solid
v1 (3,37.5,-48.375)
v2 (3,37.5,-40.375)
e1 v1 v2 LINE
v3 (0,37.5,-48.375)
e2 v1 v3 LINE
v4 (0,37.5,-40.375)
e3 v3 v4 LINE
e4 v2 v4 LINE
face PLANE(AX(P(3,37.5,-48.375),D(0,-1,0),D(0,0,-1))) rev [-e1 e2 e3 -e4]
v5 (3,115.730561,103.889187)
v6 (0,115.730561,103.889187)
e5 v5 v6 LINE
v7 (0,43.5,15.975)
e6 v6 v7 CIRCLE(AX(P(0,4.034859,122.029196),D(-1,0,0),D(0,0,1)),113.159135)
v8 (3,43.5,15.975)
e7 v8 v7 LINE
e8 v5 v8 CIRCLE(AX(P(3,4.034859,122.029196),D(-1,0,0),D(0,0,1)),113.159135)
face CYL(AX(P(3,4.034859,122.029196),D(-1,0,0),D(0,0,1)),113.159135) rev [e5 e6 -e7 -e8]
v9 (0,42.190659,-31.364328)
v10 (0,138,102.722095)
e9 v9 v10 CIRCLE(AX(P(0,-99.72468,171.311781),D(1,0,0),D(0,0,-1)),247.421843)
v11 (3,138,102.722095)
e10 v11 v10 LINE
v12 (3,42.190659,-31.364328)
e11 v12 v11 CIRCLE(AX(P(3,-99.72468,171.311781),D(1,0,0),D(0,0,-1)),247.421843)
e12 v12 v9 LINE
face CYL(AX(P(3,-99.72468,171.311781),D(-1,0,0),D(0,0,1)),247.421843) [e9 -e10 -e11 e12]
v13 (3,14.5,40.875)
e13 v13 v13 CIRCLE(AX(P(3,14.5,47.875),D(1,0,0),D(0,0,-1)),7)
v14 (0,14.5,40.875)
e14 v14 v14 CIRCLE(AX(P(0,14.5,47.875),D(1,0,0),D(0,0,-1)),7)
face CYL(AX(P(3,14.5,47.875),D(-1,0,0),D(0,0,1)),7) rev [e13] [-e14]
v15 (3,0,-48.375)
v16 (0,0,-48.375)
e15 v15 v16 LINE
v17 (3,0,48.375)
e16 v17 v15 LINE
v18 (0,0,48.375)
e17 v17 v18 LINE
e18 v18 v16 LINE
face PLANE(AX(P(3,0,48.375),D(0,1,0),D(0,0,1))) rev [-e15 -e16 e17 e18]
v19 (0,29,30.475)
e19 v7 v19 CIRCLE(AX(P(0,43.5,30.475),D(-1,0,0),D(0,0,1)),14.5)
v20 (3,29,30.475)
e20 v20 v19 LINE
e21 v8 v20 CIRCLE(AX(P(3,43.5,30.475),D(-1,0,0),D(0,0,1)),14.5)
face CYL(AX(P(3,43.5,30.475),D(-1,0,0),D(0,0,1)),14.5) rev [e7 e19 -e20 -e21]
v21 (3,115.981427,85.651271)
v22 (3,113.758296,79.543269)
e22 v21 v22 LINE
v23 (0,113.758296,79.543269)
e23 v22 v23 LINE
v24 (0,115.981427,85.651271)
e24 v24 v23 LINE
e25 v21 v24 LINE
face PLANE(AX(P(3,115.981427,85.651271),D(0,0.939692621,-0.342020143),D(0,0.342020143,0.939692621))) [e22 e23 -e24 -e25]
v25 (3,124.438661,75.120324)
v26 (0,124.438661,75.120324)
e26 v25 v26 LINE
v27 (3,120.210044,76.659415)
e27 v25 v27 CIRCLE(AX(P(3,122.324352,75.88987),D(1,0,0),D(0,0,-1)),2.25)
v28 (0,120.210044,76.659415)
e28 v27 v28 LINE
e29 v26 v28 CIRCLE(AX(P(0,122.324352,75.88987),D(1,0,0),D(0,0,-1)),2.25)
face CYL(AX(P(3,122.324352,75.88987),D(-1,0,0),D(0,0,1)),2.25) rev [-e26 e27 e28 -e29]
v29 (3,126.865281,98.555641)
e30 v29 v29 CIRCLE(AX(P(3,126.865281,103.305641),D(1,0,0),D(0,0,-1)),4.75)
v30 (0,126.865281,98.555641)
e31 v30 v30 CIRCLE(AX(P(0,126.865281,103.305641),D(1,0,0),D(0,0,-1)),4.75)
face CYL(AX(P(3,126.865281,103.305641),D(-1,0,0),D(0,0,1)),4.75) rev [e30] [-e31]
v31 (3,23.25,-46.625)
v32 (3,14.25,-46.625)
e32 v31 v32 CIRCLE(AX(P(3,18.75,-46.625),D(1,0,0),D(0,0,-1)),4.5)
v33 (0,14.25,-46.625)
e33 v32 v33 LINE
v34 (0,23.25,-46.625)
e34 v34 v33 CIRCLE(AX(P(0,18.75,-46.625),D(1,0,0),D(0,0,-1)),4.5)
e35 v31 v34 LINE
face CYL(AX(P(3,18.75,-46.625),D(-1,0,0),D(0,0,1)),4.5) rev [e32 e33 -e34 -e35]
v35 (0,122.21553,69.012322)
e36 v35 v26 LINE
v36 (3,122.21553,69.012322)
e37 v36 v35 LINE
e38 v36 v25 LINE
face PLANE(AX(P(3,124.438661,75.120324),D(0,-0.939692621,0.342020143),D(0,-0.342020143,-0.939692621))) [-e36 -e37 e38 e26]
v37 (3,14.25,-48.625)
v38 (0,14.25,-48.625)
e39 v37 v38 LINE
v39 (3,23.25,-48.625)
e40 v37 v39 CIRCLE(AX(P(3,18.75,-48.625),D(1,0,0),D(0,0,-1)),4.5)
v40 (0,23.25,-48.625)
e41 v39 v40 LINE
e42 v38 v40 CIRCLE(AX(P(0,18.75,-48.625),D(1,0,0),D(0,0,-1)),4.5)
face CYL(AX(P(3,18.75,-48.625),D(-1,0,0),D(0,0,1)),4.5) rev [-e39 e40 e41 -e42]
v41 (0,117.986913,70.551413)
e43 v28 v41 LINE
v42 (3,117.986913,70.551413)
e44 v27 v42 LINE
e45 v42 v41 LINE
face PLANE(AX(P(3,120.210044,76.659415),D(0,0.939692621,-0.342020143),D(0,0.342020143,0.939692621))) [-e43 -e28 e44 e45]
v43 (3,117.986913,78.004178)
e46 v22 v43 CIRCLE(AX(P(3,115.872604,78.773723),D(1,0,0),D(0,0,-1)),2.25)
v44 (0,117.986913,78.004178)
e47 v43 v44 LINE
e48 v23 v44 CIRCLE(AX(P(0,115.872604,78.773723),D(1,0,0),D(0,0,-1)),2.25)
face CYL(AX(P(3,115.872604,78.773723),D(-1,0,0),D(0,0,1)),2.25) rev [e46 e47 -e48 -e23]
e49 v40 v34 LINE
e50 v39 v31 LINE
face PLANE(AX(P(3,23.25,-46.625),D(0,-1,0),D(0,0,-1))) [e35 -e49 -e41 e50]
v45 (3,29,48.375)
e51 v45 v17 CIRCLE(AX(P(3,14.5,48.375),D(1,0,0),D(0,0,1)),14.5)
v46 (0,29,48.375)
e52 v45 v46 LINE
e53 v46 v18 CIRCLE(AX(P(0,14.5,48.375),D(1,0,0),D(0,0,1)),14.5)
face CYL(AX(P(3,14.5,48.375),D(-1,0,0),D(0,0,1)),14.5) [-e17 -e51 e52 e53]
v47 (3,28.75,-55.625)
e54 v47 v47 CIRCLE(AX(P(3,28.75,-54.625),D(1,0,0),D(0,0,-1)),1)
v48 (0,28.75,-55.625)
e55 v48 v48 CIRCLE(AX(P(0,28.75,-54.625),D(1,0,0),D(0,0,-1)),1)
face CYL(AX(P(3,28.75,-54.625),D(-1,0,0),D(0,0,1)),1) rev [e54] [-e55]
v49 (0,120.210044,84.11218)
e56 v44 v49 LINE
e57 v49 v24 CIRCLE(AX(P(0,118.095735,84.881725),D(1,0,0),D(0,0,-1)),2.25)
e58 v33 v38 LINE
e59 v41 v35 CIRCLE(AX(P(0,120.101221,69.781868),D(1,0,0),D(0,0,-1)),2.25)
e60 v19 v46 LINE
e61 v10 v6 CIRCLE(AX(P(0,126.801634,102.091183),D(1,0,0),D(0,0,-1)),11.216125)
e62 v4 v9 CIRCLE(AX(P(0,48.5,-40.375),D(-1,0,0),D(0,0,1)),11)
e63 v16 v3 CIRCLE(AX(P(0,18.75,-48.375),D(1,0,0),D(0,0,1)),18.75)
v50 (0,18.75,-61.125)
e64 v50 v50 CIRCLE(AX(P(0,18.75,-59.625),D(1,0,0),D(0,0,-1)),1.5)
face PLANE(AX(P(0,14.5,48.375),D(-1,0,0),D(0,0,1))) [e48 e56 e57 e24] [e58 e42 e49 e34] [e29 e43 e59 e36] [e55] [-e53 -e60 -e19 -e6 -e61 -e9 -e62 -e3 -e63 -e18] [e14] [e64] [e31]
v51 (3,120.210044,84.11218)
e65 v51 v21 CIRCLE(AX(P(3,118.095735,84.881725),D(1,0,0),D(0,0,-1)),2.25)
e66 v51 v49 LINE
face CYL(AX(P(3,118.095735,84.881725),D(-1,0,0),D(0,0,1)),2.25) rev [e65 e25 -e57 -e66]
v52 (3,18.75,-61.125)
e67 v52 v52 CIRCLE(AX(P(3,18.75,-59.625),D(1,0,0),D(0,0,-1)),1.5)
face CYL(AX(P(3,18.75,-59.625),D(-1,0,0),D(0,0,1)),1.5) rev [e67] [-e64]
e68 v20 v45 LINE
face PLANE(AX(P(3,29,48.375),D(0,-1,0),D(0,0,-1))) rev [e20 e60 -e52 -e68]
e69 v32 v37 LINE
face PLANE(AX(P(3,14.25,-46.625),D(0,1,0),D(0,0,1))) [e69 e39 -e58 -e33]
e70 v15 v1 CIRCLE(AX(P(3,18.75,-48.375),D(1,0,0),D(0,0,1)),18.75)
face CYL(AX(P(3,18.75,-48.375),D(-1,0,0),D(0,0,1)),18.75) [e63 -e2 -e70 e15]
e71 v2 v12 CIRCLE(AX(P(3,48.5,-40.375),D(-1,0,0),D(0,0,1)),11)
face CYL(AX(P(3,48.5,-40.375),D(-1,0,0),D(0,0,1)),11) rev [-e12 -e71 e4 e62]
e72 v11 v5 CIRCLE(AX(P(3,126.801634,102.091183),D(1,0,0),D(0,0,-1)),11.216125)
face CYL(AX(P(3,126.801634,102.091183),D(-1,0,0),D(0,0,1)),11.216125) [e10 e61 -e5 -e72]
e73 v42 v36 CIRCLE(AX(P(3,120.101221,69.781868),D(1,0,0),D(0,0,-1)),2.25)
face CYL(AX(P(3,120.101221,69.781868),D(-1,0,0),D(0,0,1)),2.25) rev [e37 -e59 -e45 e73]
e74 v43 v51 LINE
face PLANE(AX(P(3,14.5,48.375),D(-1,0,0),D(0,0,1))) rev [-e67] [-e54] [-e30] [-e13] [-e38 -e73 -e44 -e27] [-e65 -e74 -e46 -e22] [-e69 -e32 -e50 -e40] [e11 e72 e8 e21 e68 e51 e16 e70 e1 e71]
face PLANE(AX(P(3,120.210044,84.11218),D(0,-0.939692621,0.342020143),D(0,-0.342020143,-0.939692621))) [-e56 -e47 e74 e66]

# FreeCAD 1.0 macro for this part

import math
import FreeCAD as App
import Part
import Sketcher

V = App.Vector
Q = App.Units.Quantity

doc = App.newDocument("Part")
body = doc.addObject("PartDesign::Body", "Body")

sketch1 = body.newObject("Sketcher::SketchObject", "Sketch")
sketch1.AttachmentSupport = (doc.getObject("YZ_Plane"), [""])
sketch1.MapMode = "FlatFace"
sketch1.addGeometry([
    Part.LineSegment(V(0, 48.4, 0), V(0, -48.4, 0)),
    Part.ArcOfCircle(Part.Circle(V(18.8, -48.4, 0), V(0, 0, 1), 18.8), math.radians(180), math.radians(360)),
    Part.LineSegment(V(37.5, -48.4, 0), V(37.5, -40.4, 0)),
    Part.ArcOfCircle(Part.Circle(V(48.5, -40.4, 0), V(0, 0, 1), 11), math.radians(125), math.radians(180)),
    Part.ArcOfCircle(Part.Circle(V(-99.7, 171.3, 0), V(0, 0, 1), 247.4), math.radians(-55), math.radians(-16)),
    Part.ArcOfCircle(Part.Circle(V(126.8, 102.1, 0), V(0, 0, 1), 11.2), math.radians(3), math.radians(171)),
    Part.ArcOfCircle(Part.Circle(V(4, 122, 0), V(0, 0, 1), 113.2), math.radians(-70), math.radians(-9)),
    Part.ArcOfCircle(Part.Circle(V(43.5, 30.5, 0), V(0, 0, 1), 14.5), math.radians(-180), math.radians(-90)),
    Part.LineSegment(V(29, 30.5, 0), V(29, 48.4, 0)),
    Part.ArcOfCircle(Part.Circle(V(14.5, 48.4, 0), V(0, 0, 1), 14.5), math.radians(0), math.radians(180)),
    Part.Circle(V(14.5, 47.9, 0), V(0, 0, 1), 7),
    Part.ArcOfCircle(Part.Circle(V(18.8, -46.6, 0), V(0, 0, 1), 4.5), math.radians(0), math.radians(180)),
    Part.LineSegment(V(23.2, -46.6, 0), V(23.2, -48.6, 0)),
    Part.ArcOfCircle(Part.Circle(V(18.8, -48.6, 0), V(0, 0, 1), 4.5), math.radians(180), math.radians(360)),
    Part.LineSegment(V(14.2, -48.6, 0), V(14.2, -46.6, 0)),
    Part.Circle(V(18.8, -59.6, 0), V(0, 0, 1), 1.5),
    Part.Circle(V(28.8, -54.6, 0), V(0, 0, 1), 1),
    Part.Circle(V(126.9, 103.3, 0), V(0, 0, 1), 4.8),
    Part.ArcOfCircle(Part.Circle(V(118.1, 84.9, 0), V(0, 0, 1), 2.2), math.radians(-20), math.radians(160)),
    Part.LineSegment(V(120.2, 84.1, 0), V(118, 78, 0)),
    Part.ArcOfCircle(Part.Circle(V(115.9, 78.8, 0), V(0, 0, 1), 2.2), math.radians(160), math.radians(340)),
    Part.LineSegment(V(113.8, 79.5, 0), V(116, 85.7, 0)),
    Part.ArcOfCircle(Part.Circle(V(122.3, 75.9, 0), V(0, 0, 1), 2.2), math.radians(-20), math.radians(160)),
    Part.LineSegment(V(124.4, 75.1, 0), V(122.2, 69, 0)),
    Part.ArcOfCircle(Part.Circle(V(120.1, 69.8, 0), V(0, 0, 1), 2.2), math.radians(160), math.radians(340)),
    Part.LineSegment(V(118, 70.6, 0), V(120.2, 76.7, 0)),
], False)
sketch1.addConstraint([
    Sketcher.Constraint("Tangent", 0, 2, 1, 1),
    Sketcher.Constraint("Tangent", 1, 2, 2, 1),
    Sketcher.Constraint("Tangent", 2, 2, 3, 2),
    Sketcher.Constraint("Tangent", 3, 1, 4, 1),
    Sketcher.Constraint("Coincident", 4, 2, 5, 1),
    Sketcher.Constraint("Tangent", 5, 2, 6, 2),
    Sketcher.Constraint("Coincident", 6, 1, 7, 2),
    Sketcher.Constraint("Tangent", 7, 1, 8, 1),
    Sketcher.Constraint("Tangent", 8, 2, 9, 1),
    Sketcher.Constraint("Tangent", 9, 2, 0, 1),
    Sketcher.Constraint("Tangent", 11, 1, 12, 1),
    Sketcher.Constraint("Tangent", 12, 2, 13, 2),
    Sketcher.Constraint("Tangent", 13, 1, 14, 1),
    Sketcher.Constraint("Tangent", 14, 2, 11, 2),
    Sketcher.Constraint("Tangent", 18, 1, 19, 1),
    Sketcher.Constraint("Tangent", 19, 2, 20, 2),
    Sketcher.Constraint("Tangent", 20, 1, 21, 1),
    Sketcher.Constraint("Tangent", 21, 2, 18, 2),
    Sketcher.Constraint("Tangent", 22, 1, 23, 1),
    Sketcher.Constraint("Tangent", 23, 2, 24, 2),
    Sketcher.Constraint("Tangent", 24, 1, 25, 1),
    Sketcher.Constraint("Tangent", 25, 2, 22, 2),
    Sketcher.Constraint("Vertical", 0),
    Sketcher.Constraint("Vertical", 2),
    Sketcher.Constraint("Vertical", 8),
    Sketcher.Constraint("Vertical", 12),
    Sketcher.Constraint("Vertical", 14),
    Sketcher.Constraint("Equal", 7, 9),
    Sketcher.Constraint("Equal", 18, 20),
    Sketcher.Constraint("Equal", 20, 22),
    Sketcher.Constraint("Equal", 22, 24),
    Sketcher.Constraint("Symmetric", 0, 2, 9, 2, -1, 1),
    Sketcher.Constraint("Parallel", 21, 23),
    Sketcher.Constraint("Vertical", 9, 3, 10, 3),
    Sketcher.Constraint("Vertical", 1, 3, 11, 3),
    Sketcher.Constraint("Vertical", 13, 3, 15, 3),
    Sketcher.Constraint("Vertical", 7, 3, 6, 1),
    Sketcher.Constraint("Vertical", 19, 2, 24, 1),
    Sketcher.Constraint("Vertical", 18, 1, 25, 2),
    Sketcher.Constraint("Diameter", 10, 14.0),
    Sketcher.Constraint("Diameter", 15, 3.0),
    Sketcher.Constraint("Diameter", 16, 2.0),
    Sketcher.Constraint("Radius", 3, 11.0),
    Sketcher.Constraint("Diameter", 17, 9.5),
    Sketcher.Constraint("Radius", 7, 14.5),
    Sketcher.Constraint("Radius", 11, 4.5),
    Sketcher.Constraint("DistanceY", 2, 1, 2, 2, 8.0),
    Sketcher.Constraint("DistanceY", 12, 2, 12, 1, 2.0),
    Sketcher.Constraint("Angle", 19, Q("-110 deg")),
    Sketcher.Constraint("Radius", 1, 18.75),
    Sketcher.Constraint("Radius", 18, 2.25),
    Sketcher.Constraint("DistanceY", 8, 1, 8, 2, 17.9),
    Sketcher.Constraint("DistanceX", -1, 1, 4, 2, 138.0),
    Sketcher.Constraint("DistanceY", 11, 3, 9, 3, 95.0),
    Sketcher.Constraint("DistanceY", 15, 3, 13, 3, 11.0),
    Sketcher.Constraint("DistanceX", 15, 3, 16, 3, 10.0),
    Sketcher.Constraint("DistanceY", 15, 3, 16, 3, 5.0),
    Sketcher.Constraint("Distance", 19, 6.5),
    Sketcher.Constraint("DistanceY", 0, 2, 0, 1, 96.75),
    Sketcher.Constraint("DistanceY", 10, 3, 9, 3, 0.5),
    Sketcher.Constraint("Radius", 4, 247.421843),
    Sketcher.Constraint("Radius", 5, 11.216125),
    Sketcher.Constraint("Radius", 6, 113.159135),
    Sketcher.Constraint("DistanceY", 5, 3, 4, 3, 69.220598),
    Sketcher.Constraint("DistanceX", 18, 3, 5, 3, 8.705898),
    Sketcher.Constraint("DistanceY", 22, 3, 20, 1, 3.653399),
    Sketcher.Constraint("DistanceX", 4, 3, -1, 1, 99.72468),
    Sketcher.Constraint("DistanceX", -1, 1, 17, 3, 126.865281),
    Sketcher.Constraint("DistanceY", -1, 1, 17, 3, 103.305641),
    Sketcher.Constraint("DistanceY", -1, 1, 22, 3, 75.88987),
])
pad1 = body.newObject("PartDesign::Pad", "Pad")
pad1.Profile = sketch1
pad1.Length = 3

doc.recompute()
